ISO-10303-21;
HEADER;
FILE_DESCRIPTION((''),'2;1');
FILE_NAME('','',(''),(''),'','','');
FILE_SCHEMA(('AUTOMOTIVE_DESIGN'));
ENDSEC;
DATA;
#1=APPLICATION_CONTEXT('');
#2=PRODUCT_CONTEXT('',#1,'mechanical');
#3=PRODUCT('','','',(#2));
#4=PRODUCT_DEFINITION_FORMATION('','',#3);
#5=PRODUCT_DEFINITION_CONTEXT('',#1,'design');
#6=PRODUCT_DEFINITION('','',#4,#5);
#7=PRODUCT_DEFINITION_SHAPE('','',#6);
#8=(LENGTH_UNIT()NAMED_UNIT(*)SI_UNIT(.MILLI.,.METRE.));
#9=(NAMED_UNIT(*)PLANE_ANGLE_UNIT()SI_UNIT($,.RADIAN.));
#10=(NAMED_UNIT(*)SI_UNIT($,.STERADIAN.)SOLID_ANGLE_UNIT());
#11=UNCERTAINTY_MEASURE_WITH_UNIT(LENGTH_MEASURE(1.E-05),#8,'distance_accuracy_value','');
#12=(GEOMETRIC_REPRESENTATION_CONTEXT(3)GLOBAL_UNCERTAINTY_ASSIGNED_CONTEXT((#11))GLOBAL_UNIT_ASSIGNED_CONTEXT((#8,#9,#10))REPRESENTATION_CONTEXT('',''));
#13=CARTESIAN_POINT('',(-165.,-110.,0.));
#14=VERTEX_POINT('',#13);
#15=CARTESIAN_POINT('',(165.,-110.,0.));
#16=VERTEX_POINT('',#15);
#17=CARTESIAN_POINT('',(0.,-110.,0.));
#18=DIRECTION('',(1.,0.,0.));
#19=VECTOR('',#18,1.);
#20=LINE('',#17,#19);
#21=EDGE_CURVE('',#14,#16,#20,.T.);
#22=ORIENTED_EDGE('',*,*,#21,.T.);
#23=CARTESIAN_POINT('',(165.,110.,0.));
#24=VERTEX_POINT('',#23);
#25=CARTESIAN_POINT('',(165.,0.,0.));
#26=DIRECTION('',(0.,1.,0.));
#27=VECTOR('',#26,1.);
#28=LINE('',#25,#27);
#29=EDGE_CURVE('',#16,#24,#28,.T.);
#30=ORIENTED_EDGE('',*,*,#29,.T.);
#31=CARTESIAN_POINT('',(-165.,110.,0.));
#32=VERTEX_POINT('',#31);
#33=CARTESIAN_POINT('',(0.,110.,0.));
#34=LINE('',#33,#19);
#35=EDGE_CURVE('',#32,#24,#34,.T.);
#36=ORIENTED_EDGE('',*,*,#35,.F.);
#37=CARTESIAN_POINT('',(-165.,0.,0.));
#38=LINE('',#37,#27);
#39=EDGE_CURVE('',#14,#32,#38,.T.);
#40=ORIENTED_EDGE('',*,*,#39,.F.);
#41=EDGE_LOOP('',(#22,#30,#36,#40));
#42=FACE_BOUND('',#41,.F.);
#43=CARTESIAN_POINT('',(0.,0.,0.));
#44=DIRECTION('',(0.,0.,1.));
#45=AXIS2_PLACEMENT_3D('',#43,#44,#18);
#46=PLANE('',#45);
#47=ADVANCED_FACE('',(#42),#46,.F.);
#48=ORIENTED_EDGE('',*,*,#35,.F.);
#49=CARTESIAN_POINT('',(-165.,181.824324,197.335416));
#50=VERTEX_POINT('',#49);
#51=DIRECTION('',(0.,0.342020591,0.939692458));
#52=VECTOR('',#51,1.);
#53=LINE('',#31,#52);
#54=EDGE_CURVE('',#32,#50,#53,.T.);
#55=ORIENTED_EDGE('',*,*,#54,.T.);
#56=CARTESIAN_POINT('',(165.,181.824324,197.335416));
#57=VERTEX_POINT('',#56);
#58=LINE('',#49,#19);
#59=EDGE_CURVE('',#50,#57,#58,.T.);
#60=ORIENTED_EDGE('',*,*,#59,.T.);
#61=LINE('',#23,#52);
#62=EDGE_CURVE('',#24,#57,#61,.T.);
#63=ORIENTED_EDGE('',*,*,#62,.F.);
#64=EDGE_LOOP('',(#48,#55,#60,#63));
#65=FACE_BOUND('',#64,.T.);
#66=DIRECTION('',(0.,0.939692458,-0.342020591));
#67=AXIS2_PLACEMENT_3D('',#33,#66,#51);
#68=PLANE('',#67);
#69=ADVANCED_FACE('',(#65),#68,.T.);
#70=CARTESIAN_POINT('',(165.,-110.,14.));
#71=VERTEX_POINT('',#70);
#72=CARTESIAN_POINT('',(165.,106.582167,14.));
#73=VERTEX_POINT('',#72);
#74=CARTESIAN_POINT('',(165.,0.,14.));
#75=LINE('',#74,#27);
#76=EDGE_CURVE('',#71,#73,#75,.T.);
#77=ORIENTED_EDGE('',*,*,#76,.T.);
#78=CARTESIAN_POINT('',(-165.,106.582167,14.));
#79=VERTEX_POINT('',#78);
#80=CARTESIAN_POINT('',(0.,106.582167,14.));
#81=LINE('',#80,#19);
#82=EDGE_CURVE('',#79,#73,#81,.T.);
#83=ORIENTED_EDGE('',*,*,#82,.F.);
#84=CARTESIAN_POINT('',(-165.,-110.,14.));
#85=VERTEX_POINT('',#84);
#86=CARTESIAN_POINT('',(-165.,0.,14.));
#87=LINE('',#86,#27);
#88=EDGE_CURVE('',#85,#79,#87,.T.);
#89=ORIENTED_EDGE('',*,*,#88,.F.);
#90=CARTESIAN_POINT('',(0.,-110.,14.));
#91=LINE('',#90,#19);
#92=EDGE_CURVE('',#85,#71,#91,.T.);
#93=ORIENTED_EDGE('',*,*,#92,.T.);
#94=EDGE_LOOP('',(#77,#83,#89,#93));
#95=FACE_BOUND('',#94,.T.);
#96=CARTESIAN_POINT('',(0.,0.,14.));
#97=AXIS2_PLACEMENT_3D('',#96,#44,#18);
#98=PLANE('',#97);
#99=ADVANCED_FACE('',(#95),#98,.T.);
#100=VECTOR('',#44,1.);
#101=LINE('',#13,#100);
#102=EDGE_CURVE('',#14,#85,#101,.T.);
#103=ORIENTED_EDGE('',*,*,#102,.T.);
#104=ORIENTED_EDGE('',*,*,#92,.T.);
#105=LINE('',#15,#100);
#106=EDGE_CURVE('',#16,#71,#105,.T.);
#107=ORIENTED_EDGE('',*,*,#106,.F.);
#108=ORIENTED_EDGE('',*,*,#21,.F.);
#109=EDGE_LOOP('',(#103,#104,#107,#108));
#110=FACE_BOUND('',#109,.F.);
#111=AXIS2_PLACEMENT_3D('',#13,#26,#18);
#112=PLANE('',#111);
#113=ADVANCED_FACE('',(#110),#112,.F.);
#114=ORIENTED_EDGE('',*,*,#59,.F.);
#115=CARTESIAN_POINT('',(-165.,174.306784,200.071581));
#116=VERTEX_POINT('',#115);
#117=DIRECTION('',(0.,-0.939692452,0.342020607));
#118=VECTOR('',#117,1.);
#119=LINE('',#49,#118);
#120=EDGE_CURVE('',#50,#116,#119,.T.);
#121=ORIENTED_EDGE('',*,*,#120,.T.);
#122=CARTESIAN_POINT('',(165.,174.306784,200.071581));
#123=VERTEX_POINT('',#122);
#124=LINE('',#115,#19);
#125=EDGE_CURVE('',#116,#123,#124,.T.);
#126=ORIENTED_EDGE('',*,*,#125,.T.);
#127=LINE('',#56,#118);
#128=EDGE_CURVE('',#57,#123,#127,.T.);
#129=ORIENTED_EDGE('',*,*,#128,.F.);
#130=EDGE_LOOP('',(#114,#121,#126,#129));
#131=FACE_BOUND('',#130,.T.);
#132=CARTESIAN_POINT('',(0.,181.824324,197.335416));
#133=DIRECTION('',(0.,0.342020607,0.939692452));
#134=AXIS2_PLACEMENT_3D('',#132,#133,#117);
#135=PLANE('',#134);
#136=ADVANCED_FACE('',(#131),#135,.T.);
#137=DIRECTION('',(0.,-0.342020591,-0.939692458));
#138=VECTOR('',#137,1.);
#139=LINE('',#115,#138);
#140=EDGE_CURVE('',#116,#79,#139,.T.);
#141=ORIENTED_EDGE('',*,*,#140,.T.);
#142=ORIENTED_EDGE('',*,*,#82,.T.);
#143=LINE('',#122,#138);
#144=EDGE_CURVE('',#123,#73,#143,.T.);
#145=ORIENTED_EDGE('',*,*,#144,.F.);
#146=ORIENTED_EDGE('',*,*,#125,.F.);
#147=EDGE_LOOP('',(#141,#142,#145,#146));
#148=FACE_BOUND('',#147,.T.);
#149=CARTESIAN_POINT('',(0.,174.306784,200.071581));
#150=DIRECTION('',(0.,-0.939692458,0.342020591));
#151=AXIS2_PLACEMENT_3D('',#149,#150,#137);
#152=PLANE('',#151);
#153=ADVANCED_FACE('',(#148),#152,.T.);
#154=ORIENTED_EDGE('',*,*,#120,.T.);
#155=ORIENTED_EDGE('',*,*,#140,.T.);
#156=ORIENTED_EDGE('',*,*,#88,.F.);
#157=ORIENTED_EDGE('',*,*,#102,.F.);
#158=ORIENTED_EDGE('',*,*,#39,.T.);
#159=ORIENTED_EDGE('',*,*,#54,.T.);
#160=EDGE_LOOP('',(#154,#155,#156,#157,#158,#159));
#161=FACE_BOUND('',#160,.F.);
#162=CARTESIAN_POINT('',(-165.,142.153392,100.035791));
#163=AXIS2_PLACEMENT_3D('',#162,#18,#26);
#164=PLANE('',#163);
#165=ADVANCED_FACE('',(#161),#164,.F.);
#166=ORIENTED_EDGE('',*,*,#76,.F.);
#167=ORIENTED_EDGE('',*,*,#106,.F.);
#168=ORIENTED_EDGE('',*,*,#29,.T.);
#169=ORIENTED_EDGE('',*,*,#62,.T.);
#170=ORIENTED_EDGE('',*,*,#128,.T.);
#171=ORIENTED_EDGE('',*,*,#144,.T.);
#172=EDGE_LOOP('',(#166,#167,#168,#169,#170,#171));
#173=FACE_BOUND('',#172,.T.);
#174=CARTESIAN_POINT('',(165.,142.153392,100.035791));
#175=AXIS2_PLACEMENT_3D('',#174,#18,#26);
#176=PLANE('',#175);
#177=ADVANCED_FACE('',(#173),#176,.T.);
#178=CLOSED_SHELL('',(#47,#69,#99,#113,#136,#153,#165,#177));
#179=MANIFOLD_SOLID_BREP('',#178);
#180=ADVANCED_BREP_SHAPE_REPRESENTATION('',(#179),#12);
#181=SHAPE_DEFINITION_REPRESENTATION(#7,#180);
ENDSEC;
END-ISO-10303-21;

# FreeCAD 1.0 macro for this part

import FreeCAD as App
import Part
import Sketcher
from FreeCAD import Vector


def add_polygon(sketch, points):
    """Adds a closed chain of lines whose ends are joined by coincident constraints."""
    first, n = sketch.GeometryCount, len(points)
    for a, b in zip(points, points[1:] + points[:1]):
        sketch.addGeometry(Part.LineSegment(App.Vector(*a, 0), App.Vector(*b, 0)), False)
    for i in range(n):
        sketch.addConstraint(Sketcher.Constraint("Coincident", first + i, 2, first + (i + 1) % n, 1))

doc = App.newDocument("Part")
body = doc.addObject("PartDesign::Body", "Body")

# Sketch on XY plane
sketch1 = body.newObject("Sketcher::SketchObject", "Sketch")
sketch1.AttachmentSupport = (doc.getObject("XY_Plane"), [""])
sketch1.MapMode = "FlatFace"
add_polygon(sketch1, [(-165, 110), (-165, -110), (165, -110), (165, 110)])  # lines 0-3
sketch1.addConstraint([
    Sketcher.Constraint("Vertical", 0),
    Sketcher.Constraint("Horizontal", 1),
    Sketcher.Constraint("Vertical", 2),
    Sketcher.Constraint("Horizontal", 3),
    Sketcher.Constraint("Symmetric", 0, 2, 2, 2, -1, 1),
    Sketcher.Constraint("DistanceX", 1, 1, 1, 2, 330.0),
    Sketcher.Constraint("DistanceY", 0, 2, 0, 1, 220.0),
])
pad1 = body.newObject("PartDesign::Pad", "Pad")
pad1.Profile = sketch1
pad1.Length = 14

# Sketch on YZ plane
sketch2 = body.newObject("Sketcher::SketchObject", "Sketch001")
sketch2.AttachmentSupport = (doc.getObject("YZ_Plane"), [""])
sketch2.MapMode = "FlatFace"
add_polygon(sketch2, [(110, 0), (181.824324, 197.335416), (174.306784, 200.071581), (102.48246, 2.736165)])  # lines 0-3
sketch2.addConstraint([
    Sketcher.Constraint("PointOnObject", 3, 2, -1),
    Sketcher.Constraint("Perpendicular", 0, 1),
    Sketcher.Constraint("Perpendicular", 1, 2),
    Sketcher.Constraint("Perpendicular", 2, 3),
    Sketcher.Constraint("Distance", 0, 210.0),
    Sketcher.Constraint("Distance", 1, 8.0),
    Sketcher.Constraint("DistanceX", -1, 1, 3, 2, 110.0),
    Sketcher.Constraint("DistanceY", -1, 1, 1, 2, 200.071581),
])
pad2 = body.newObject("PartDesign::Pad", "Pad001")
pad2.Profile = sketch2
pad2.Length = 330
pad2.Midplane = True

doc.recompute()
